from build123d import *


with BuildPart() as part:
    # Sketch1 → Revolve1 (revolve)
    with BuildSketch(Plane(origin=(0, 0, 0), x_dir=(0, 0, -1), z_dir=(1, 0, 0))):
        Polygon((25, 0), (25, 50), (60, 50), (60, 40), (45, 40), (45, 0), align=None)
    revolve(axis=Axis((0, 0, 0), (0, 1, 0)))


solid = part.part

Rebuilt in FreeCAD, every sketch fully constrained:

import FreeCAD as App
import Part
import Sketcher
from FreeCAD import Vector

doc = App.newDocument("Part")
params = doc.addObject("Spreadsheet::Sheet", "Params")
for row, (alias, value) in enumerate([
    ("sketch1_width", "50 mm"),
    ("sketch1_width2", "40 mm"),
    ("sketch1_height", "20 mm"),
    ("sketch1_height2", "15 mm"),
    ("revolution_angle", "360 deg"),
], start=1):
    params.set(f"A{row}", alias)
    params.set(f"B{row}", "=" + value)
    params.setAlias(f"B{row}", alias)

body = doc.addObject("PartDesign::Body", "Body")

# Sketch on YZ plane
sketch1 = doc.addObject("Sketcher::SketchObject", "Sketch")
body.addObject(sketch1)
sketch1.AttachmentSupport = (doc.YZ_Plane, [""])
sketch1.MapMode = "FlatFace"
sketch1.addGeometry(Part.LineSegment(Vector(50, -25, 0), Vector(0, -25, 0)), False)
sketch1.addGeometry(Part.LineSegment(Vector(0, -25, 0), Vector(0, -45, 0)), False)
sketch1.addGeometry(Part.LineSegment(Vector(0, -45, 0), Vector(40, -45, 0)), False)
sketch1.addGeometry(Part.LineSegment(Vector(40, -45, 0), Vector(40, -60, 0)), False)
sketch1.addGeometry(Part.LineSegment(Vector(40, -60, 0), Vector(50, -60, 0)), False)
sketch1.addGeometry(Part.LineSegment(Vector(50, -60, 0), Vector(50, -25, 0)), False)
sketch1.addConstraint(Sketcher.Constraint("Coincident", 0, 2, 1, 1))
sketch1.addConstraint(Sketcher.Constraint("Coincident", 1, 2, 2, 1))
sketch1.addConstraint(Sketcher.Constraint("Coincident", 2, 2, 3, 1))
sketch1.addConstraint(Sketcher.Constraint("Coincident", 3, 2, 4, 1))
sketch1.addConstraint(Sketcher.Constraint("Coincident", 4, 2, 5, 1))
sketch1.addConstraint(Sketcher.Constraint("Coincident", 5, 2, 0, 1))
sketch1.addConstraint(Sketcher.Constraint("Horizontal", 0))
sketch1.addConstraint(Sketcher.Constraint("Vertical", 1))
sketch1.addConstraint(Sketcher.Constraint("Horizontal", 2))
sketch1.addConstraint(Sketcher.Constraint("Vertical", 3))
sketch1.addConstraint(Sketcher.Constraint("Horizontal", 4))
sketch1.addConstraint(Sketcher.Constraint("Vertical", 5))
sketch1.addConstraint(Sketcher.Constraint("PointOnObject", 0, 2, -2))
sketch1.addConstraint(Sketcher.Constraint("DistanceX", 0, 2, 0, 1, 50.0))
sketch1.addConstraint(Sketcher.Constraint("DistanceX", 2, 1, 2, 2, 40.0))
sketch1.addConstraint(Sketcher.Constraint("DistanceY", 1, 2, 1, 1, 20.0))
sketch1.addConstraint(Sketcher.Constraint("DistanceY", 3, 2, 3, 1, 15.0))
sketch1.addConstraint(Sketcher.Constraint("DistanceY", 0, 2, -1, 1, 25.0))
sketch1.setExpression("Constraints[13]", "Params.sketch1_width")
sketch1.setExpression("Constraints[14]", "Params.sketch1_width2")
sketch1.setExpression("Constraints[15]", "Params.sketch1_height")
sketch1.setExpression("Constraints[16]", "Params.sketch1_height2")
revolution = doc.addObject("PartDesign::Revolution", "Revolution")
body.addObject(revolution)
revolution.Profile = sketch1
revolution.ReferenceAxis = (sketch1, ["H_Axis"])
revolution.setExpression("Angle", "Params.revolution_angle")

doc.recompute()
